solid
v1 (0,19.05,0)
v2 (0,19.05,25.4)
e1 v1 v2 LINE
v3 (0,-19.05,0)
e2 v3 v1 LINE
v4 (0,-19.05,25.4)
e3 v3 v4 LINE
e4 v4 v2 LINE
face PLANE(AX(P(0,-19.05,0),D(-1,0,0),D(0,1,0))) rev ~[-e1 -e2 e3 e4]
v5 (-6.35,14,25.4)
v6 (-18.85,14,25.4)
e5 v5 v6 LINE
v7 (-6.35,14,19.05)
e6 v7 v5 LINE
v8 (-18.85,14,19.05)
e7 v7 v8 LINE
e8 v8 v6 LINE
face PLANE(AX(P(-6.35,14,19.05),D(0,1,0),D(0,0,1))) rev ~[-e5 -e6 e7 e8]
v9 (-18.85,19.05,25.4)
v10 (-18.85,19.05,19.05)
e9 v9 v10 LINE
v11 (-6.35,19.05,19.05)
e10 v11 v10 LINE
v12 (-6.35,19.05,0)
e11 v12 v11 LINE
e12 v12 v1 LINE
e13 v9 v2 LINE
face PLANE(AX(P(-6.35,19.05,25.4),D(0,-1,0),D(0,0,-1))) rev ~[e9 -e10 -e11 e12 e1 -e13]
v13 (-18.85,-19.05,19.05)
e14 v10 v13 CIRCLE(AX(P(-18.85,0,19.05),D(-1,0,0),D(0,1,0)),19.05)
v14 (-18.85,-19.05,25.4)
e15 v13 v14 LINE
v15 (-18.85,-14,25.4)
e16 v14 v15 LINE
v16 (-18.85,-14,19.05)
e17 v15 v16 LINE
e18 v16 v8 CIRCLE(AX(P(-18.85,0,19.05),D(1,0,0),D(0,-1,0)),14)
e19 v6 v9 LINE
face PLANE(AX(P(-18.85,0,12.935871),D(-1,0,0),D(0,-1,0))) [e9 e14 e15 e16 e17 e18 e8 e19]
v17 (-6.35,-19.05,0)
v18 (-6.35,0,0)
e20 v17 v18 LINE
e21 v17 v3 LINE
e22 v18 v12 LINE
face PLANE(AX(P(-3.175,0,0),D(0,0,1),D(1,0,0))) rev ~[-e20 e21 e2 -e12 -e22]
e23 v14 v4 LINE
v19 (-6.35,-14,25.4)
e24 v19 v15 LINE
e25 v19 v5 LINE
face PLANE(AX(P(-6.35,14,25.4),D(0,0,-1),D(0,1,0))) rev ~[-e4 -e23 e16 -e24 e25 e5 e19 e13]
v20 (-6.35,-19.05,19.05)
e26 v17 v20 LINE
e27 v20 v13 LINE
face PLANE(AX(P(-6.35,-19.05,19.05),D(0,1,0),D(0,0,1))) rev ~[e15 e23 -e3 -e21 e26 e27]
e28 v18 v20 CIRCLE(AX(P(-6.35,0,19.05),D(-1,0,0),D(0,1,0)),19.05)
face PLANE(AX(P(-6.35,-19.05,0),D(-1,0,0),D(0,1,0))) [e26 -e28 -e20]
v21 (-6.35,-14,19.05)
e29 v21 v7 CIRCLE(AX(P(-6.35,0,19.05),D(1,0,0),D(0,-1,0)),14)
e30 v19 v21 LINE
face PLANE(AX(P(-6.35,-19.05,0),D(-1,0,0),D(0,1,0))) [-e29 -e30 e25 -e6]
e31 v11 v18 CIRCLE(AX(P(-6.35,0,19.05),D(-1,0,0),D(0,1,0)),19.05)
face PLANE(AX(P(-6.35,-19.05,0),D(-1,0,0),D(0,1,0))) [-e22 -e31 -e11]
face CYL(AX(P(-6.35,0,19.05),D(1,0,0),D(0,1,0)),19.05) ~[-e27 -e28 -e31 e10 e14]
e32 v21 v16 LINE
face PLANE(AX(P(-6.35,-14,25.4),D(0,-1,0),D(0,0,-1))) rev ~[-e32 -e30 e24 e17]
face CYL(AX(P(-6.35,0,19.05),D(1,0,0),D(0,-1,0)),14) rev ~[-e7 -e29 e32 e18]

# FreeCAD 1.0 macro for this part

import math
import FreeCAD as App
import Part
import Sketcher
from FreeCAD import Vector
Q = App.Units.Quantity


def add_polygon(sketch, points):
    """Adds a closed chain of lines whose ends are joined by coincident constraints."""
    first, n = sketch.GeometryCount, len(points)
    for a, b in zip(points, points[1:] + points[:1]):
        sketch.addGeometry(Part.LineSegment(App.Vector(*a, 0), App.Vector(*b, 0)), False)
    for i in range(n):
        sketch.addConstraint(Sketcher.Constraint("Coincident", first + i, 2, first + (i + 1) % n, 1))

doc = App.newDocument("Part")
body = doc.addObject("PartDesign::Body", "Body")

# Sketch on XY plane
sketch1 = doc.addObject("Sketcher::SketchObject", "Sketch")
body.addObject(sketch1)
sketch1.AttachmentSupport = (doc.XY_Plane, [""])
sketch1.MapMode = "FlatFace"
add_polygon(sketch1, [(-6, 19), (-6, -19), (0, -19), (0, 19)])  # lines 0-3
sketch1.addConstraint([
    Sketcher.Constraint("Vertical", 0),
    Sketcher.Constraint("Horizontal", 1),
    Sketcher.Constraint("Vertical", 2),
    Sketcher.Constraint("Horizontal", 3),
    Sketcher.Constraint("Symmetric", 1, 2, 2, 2, -1, 1),
    Sketcher.Constraint("DistanceY", 0, 2, 0, 1, Q("1.5 in")),
    Sketcher.Constraint("DistanceX", 1, 1, 1, 2, Q("0.25 in")),
])
pad1 = doc.addObject("PartDesign::Pad", "Pad")
body.addObject(pad1)
pad1.Profile = sketch1
pad1.Length = Q("1 in")

# Sketch on YZ plane
sketch2 = doc.addObject("Sketcher::SketchObject", "Sketch001")
body.addObject(sketch2)
sketch2.AttachmentSupport = (doc.YZ_Plane, [""])
sketch2.MapMode = "FlatFace"
sketch2.AttachmentOffset = App.Placement(Vector(0, 0, -0.25 * 25.4), App.Rotation())
sketch2.addGeometry([
    Part.LineSegment(Vector(19, 25, 0), Vector(19, 19, 0)),  # 0
    Part.ArcOfCircle(Part.Circle(Vector(0, 19, 0), Vector(0, 0, 1), 19), math.radians(180), math.radians(360)),  # 1
    Part.LineSegment(Vector(-19, 19, 0), Vector(-19, 25, 0)),  # 2
    Part.LineSegment(Vector(-19, 25, 0), Vector(-14, 25, 0)),  # 3
    Part.LineSegment(Vector(-14, 25, 0), Vector(-14, 19, 0)),  # 4
    Part.ArcOfCircle(Part.Circle(Vector(0, 19, 0), Vector(0, 0, 1), 14), math.radians(180), math.radians(360)),  # 5
    Part.LineSegment(Vector(14, 19, 0), Vector(14, 25, 0)),  # 6
    Part.LineSegment(Vector(14, 25, 0), Vector(19, 25, 0)),  # 7
], False)
sketch2.addConstraint([
    Sketcher.Constraint("Tangent", 0, 2, 1, 2),
    Sketcher.Constraint("Tangent", 1, 1, 2, 1),
    Sketcher.Constraint("Coincident", 2, 2, 3, 1),
    Sketcher.Constraint("Coincident", 3, 2, 4, 1),
    Sketcher.Constraint("Tangent", 4, 2, 5, 1),
    Sketcher.Constraint("Tangent", 5, 2, 6, 1),
    Sketcher.Constraint("Coincident", 6, 2, 7, 1),
    Sketcher.Constraint("Coincident", 7, 2, 0, 1),
    Sketcher.Constraint("Vertical", 0),
    Sketcher.Constraint("Vertical", 2),
    Sketcher.Constraint("Horizontal", 3),
    Sketcher.Constraint("Vertical", 4),
    Sketcher.Constraint("Vertical", 6),
    Sketcher.Constraint("Horizontal", 7),
    Sketcher.Constraint("Coincident", 5, 3, 1, 3),
    Sketcher.Constraint("Symmetric", 3, 2, 6, 2, -2),
    Sketcher.Constraint("Radius", 1, Q("0.75 in")),
    Sketcher.Constraint("DistanceY", -1, 1, 2, 2, Q("1 in")),
    Sketcher.Constraint("DistanceY", 0, 2, 0, 1, Q("0.25 in")),
    Sketcher.Constraint("Radius", 5, Q("14 mm")),
])
pad2 = doc.addObject("PartDesign::Pad", "Pad001")
body.addObject(pad2)
pad2.Profile = sketch2
pad2.Length = 12.5
pad2.Reversed = True

doc.recompute()
